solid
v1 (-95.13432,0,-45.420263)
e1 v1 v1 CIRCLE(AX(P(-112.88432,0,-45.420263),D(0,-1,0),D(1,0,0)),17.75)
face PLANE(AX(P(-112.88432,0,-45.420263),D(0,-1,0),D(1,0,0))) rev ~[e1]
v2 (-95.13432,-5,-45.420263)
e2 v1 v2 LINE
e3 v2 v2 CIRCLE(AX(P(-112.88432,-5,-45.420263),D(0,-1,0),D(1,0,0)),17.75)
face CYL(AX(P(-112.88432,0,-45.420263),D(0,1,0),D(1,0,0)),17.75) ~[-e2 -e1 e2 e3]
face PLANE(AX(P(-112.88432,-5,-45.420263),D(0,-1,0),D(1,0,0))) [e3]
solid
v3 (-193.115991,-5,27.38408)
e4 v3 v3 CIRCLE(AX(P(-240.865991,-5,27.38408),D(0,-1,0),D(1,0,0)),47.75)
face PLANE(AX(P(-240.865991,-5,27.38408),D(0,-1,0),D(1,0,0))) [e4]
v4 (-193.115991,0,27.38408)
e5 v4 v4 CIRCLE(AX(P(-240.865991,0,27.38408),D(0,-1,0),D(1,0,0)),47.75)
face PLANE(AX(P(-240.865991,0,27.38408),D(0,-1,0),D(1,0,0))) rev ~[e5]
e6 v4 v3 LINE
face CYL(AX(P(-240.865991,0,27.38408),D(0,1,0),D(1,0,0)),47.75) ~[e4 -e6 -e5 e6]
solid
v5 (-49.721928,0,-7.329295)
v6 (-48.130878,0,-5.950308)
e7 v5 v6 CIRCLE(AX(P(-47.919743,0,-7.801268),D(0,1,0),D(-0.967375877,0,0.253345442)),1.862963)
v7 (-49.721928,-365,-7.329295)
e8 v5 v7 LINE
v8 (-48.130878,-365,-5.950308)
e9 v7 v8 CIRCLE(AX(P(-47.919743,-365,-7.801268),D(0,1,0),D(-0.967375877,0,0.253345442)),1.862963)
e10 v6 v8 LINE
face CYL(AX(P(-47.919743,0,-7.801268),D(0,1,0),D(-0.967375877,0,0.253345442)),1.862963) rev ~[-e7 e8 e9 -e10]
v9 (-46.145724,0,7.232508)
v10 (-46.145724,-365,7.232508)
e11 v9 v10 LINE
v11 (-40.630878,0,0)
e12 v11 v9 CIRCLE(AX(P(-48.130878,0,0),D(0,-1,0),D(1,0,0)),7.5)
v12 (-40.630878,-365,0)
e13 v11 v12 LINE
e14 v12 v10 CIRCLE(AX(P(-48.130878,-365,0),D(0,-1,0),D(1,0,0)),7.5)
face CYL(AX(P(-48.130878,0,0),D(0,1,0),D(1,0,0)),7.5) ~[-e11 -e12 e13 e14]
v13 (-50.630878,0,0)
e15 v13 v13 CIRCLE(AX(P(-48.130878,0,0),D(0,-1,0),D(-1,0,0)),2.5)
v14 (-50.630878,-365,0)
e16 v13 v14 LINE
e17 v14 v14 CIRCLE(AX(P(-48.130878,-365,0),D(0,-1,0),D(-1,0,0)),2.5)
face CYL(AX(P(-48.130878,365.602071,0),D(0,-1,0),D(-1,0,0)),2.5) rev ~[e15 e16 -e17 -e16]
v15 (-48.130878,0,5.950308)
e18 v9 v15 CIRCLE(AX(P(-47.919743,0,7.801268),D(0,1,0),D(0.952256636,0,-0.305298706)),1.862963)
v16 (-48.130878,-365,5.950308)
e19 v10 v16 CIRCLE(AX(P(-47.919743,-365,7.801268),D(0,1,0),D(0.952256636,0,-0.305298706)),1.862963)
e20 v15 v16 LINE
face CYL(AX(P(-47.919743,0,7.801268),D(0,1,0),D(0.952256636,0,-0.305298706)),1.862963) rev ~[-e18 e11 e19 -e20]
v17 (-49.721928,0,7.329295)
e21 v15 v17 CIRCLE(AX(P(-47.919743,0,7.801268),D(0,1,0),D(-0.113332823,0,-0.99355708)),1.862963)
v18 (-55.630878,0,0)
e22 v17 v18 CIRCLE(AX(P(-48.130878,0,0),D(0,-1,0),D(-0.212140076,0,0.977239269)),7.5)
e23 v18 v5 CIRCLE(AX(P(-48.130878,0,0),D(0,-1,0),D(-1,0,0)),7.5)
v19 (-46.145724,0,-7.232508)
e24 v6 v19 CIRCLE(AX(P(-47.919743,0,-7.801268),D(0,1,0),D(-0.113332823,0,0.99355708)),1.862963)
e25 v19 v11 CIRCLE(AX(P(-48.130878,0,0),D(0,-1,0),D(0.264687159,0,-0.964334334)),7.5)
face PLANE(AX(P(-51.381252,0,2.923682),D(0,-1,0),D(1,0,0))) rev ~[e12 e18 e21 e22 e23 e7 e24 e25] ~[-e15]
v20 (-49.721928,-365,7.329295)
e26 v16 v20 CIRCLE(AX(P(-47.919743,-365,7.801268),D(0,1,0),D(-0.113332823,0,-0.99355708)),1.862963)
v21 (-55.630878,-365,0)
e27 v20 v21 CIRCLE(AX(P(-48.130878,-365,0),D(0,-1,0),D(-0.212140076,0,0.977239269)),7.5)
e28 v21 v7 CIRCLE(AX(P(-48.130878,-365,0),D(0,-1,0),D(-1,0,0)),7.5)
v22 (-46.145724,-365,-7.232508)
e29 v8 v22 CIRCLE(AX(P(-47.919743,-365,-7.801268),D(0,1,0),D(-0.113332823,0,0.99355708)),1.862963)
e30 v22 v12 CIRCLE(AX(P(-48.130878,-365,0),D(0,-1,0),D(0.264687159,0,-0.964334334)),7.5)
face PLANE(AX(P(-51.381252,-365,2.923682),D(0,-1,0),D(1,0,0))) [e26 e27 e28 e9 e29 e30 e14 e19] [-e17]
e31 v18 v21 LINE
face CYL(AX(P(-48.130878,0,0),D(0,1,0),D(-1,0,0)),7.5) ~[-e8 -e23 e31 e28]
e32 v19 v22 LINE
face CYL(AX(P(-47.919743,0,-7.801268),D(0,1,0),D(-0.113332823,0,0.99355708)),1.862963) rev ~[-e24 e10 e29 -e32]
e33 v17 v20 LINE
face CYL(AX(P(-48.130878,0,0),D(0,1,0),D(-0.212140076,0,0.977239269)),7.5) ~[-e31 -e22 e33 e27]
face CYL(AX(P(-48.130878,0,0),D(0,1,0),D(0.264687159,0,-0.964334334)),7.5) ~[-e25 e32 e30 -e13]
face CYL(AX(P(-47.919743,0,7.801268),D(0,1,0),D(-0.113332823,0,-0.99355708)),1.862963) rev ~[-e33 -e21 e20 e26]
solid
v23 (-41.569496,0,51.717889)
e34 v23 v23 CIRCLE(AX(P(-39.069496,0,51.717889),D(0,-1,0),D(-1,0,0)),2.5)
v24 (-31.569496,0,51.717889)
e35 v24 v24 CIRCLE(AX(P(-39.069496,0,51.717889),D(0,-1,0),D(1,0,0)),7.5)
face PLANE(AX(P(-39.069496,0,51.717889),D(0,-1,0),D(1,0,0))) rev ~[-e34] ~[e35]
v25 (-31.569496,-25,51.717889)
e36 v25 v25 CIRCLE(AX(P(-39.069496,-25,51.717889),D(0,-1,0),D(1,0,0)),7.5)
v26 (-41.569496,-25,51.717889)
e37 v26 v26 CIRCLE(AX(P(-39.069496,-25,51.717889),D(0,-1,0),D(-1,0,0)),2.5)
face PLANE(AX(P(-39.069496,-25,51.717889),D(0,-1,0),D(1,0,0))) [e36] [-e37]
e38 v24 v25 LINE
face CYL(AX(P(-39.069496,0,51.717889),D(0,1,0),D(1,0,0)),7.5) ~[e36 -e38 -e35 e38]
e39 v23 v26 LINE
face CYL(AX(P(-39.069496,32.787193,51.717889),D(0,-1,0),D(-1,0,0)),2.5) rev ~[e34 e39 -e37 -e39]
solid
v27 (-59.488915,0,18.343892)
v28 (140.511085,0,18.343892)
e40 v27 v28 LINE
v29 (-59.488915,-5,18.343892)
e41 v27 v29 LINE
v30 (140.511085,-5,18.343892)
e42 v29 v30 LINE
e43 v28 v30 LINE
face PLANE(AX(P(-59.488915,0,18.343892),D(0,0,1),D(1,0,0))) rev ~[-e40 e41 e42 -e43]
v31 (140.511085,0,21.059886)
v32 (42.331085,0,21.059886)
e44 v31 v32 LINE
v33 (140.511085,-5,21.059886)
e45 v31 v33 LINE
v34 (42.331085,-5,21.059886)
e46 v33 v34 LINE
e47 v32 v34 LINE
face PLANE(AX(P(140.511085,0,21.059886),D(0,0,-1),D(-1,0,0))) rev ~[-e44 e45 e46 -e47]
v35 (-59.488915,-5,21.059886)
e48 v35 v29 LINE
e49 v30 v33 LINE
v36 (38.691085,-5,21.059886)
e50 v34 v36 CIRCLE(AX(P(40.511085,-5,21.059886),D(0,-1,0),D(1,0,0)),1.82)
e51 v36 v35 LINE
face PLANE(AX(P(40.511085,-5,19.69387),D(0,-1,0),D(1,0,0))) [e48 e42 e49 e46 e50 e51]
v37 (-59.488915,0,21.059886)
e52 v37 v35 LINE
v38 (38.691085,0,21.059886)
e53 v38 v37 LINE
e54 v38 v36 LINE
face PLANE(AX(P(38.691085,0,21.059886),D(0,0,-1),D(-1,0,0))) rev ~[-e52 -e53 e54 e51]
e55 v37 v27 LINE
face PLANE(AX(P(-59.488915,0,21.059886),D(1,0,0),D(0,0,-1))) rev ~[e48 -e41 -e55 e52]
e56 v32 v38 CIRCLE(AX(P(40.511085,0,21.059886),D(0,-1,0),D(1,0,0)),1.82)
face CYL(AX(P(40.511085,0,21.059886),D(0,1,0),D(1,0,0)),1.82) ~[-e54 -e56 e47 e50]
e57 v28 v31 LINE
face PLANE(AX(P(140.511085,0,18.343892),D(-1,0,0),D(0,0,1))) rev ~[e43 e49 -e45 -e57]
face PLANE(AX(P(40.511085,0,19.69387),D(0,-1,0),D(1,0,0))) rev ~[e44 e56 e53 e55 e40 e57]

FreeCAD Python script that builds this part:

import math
import FreeCAD as App
import Part
import Sketcher

V = App.Vector

doc = App.newDocument("Part")
body = doc.addObject("PartDesign::Body", "Body")

sketch1 = body.newObject("Sketcher::SketchObject", "Sketch")
sketch1.AttachmentSupport = (doc.getObject("XZ_Plane"), [""])
sketch1.MapMode = "FlatFace"
sketch1.addGeometry(Part.ArcOfCircle(Part.Circle(V(-48.130878, 0, 0), V(0, 0, 1), 7.5), math.radians(102.247796), math.radians(180)), False)
sketch1.addGeometry(Part.ArcOfCircle(Part.Circle(V(-48.130878, 0, 0), V(0, 0, 1), 7.5), math.radians(180), math.radians(257.752204)), False)
sketch1.addGeometry(Part.ArcOfCircle(Part.Circle(V(-47.919743, -7.801268, 0), V(0, 0, 1), 1.862963), math.radians(96.507474), math.radians(165.324433)), False)
sketch1.addGeometry(Part.ArcOfCircle(Part.Circle(V(-47.919743, -7.801268, 0), V(0, 0, 1), 1.862963), math.radians(17.776136), math.radians(96.507474)), False)
sketch1.addGeometry(Part.ArcOfCircle(Part.Circle(V(-48.130878, 0, 0), V(0, 0, 1), 7.5), math.radians(-74.651635), math.radians(0)), False)
sketch1.addGeometry(Part.ArcOfCircle(Part.Circle(V(-48.130878, 0, 0), V(0, 0, 1), 7.5), math.radians(0), math.radians(74.651635)), False)
sketch1.addGeometry(Part.ArcOfCircle(Part.Circle(V(-47.919743, 7.801268, 0), V(0, 0, 1), 1.862963), math.radians(-96.507474), math.radians(-17.776136)), False)
sketch1.addGeometry(Part.ArcOfCircle(Part.Circle(V(-47.919743, 7.801268, 0), V(0, 0, 1), 1.862963), math.radians(-165.324433), math.radians(-96.507474)), False)
sketch1.addConstraint(Sketcher.Constraint("Tangent", 0, 2, 1, 1))
sketch1.addConstraint(Sketcher.Constraint("Coincident", 1, 2, 2, 2))
sketch1.addConstraint(Sketcher.Constraint("Tangent", 2, 1, 3, 2))
sketch1.addConstraint(Sketcher.Constraint("Coincident", 3, 1, 4, 1))
sketch1.addConstraint(Sketcher.Constraint("Tangent", 4, 2, 5, 1))
sketch1.addConstraint(Sketcher.Constraint("Coincident", 5, 2, 6, 2))
sketch1.addConstraint(Sketcher.Constraint("Tangent", 6, 1, 7, 2))
sketch1.addConstraint(Sketcher.Constraint("Coincident", 7, 1, 0, 1))
sketch1.addConstraint(Sketcher.Constraint("Coincident", 4, 3, 0, 3))
sketch1.addConstraint(Sketcher.Constraint("Equal", 0, 1))
sketch1.addConstraint(Sketcher.Constraint("Equal", 2, 3))
sketch1.addConstraint(Sketcher.Constraint("Equal", 1, 4))
sketch1.addConstraint(Sketcher.Constraint("Equal", 4, 5))
sketch1.addConstraint(Sketcher.Constraint("Equal", 3, 6))
sketch1.addConstraint(Sketcher.Constraint("Equal", 6, 7))
sketch1.addConstraint(Sketcher.Constraint("Symmetric", 2, 3, 6, 3, -1))
sketch1.addConstraint(Sketcher.Constraint("PointOnObject", 0, 3, -1))
sketch1.addConstraint(Sketcher.Constraint("PointOnObject", 0, 2, -1))
sketch1.addConstraint(Sketcher.Constraint("PointOnObject", 4, 2, -1))
sketch1.addConstraint(Sketcher.Constraint("Vertical", 5, 3, 2, 1))
sketch1.addConstraint(Sketcher.Constraint("Vertical", 2, 1, 6, 1))
sketch1.addConstraint(Sketcher.Constraint("Radius", 0, 7.5))
sketch1.addConstraint(Sketcher.Constraint("Radius", 2, 1.862963))
sketch1.addConstraint(Sketcher.Constraint("DistanceY", 3, 1, 2, 1, 1.2822))
sketch1.addConstraint(Sketcher.Constraint("DistanceX", 1, 2, -1, 1, 49.721928))
sketch1.addConstraint(Sketcher.Constraint("DistanceX", 1, 2, 0, 3, 1.591051))
pad1 = body.newObject("PartDesign::Pad", "Pad")
pad1.Profile = sketch1
pad1.Length = 365

sketch2 = body.newObject("Sketcher::SketchObject", "Sketch001")
sketch2.AttachmentSupport = (doc.getObject("XZ_Plane"), [""])
sketch2.MapMode = "FlatFace"
sketch2.addGeometry(Part.Circle(V(-48.130878, 0, 0), V(0, 0, 1), 2.5), False)
sketch2.addConstraint(Sketcher.Constraint("PointOnObject", 0, 3, -1))
sketch2.addConstraint(Sketcher.Constraint("Diameter", 0, 5.0))
sketch2.addConstraint(Sketcher.Constraint("DistanceX", 0, 3, -1, 1, 48.130878))
doc.recompute()
hole = body.newObject("PartDesign::Hole", "Hole")
hole.Profile = sketch2
hole.ThreadType = "None"
hole.Diameter = 5
hole.DepthType = "ThroughAll"
hole.Reversed = True
body2 = doc.addObject("PartDesign::Body", "Body001")

sketch3 = body2.newObject("Sketcher::SketchObject", "Sketch002")
sketch3.AttachmentSupport = (doc.getObject("XZ_Plane001"), [""])
sketch3.MapMode = "FlatFace"
sketch3.addGeometry(Part.Circle(V(-39.069496, 51.717889, 0), V(0, 0, 1), 7.5), False)
sketch3.addConstraint(Sketcher.Constraint("Diameter", 0, 15.0))
sketch3.addConstraint(Sketcher.Constraint("DistanceY", -1, 1, 0, 3, 51.717889))
sketch3.addConstraint(Sketcher.Constraint("DistanceX", 0, 3, -1, 1, 39.069496))
pad2 = body2.newObject("PartDesign::Pad", "Pad001")
pad2.Profile = sketch3
pad2.Length = 25

sketch4 = body2.newObject("Sketcher::SketchObject", "Sketch003")
sketch4.AttachmentSupport = (doc.getObject("XZ_Plane001"), [""])
sketch4.MapMode = "FlatFace"
sketch4.addGeometry(Part.Circle(V(-39.069496, 51.717889, 0), V(0, 0, 1), 2.5), False)
sketch4.addConstraint(Sketcher.Constraint("Diameter", 0, 5.0))
sketch4.addConstraint(Sketcher.Constraint("DistanceY", -1, 1, 0, 3, 51.717889))
sketch4.addConstraint(Sketcher.Constraint("DistanceX", 0, 3, -1, 1, 39.069496))
doc.recompute()
hole2 = body2.newObject("PartDesign::Hole", "Hole001")
hole2.Profile = sketch4
hole2.ThreadType = "None"
hole2.Diameter = 5
hole2.DepthType = "ThroughAll"
hole2.Reversed = True
body3 = doc.addObject("PartDesign::Body", "Body002")

sketch5 = body3.newObject("Sketcher::SketchObject", "Sketch004")
sketch5.AttachmentSupport = (doc.getObject("XZ_Plane002"), [""])
sketch5.MapMode = "FlatFace"
sketch5.addGeometry(Part.LineSegment(V(140.511085, 21.059886, 0), V(42.331085, 21.059886, 0)), False)
sketch5.addGeometry(Part.ArcOfCircle(Part.Circle(V(40.511085, 21.059886, 0), V(0, 0, 1), 1.82), math.radians(0), math.radians(180)), False)
sketch5.addGeometry(Part.LineSegment(V(38.691085, 21.059886, 0), V(-59.488915, 21.059886, 0)), False)
sketch5.addGeometry(Part.LineSegment(V(-59.488915, 21.059886, 0), V(-59.488915, 18.343892, 0)), False)
sketch5.addGeometry(Part.LineSegment(V(-59.488915, 18.343892, 0), V(140.511085, 18.343892, 0)), False)
sketch5.addGeometry(Part.LineSegment(V(140.511085, 18.343892, 0), V(140.511085, 21.059886, 0)), False)
sketch5.addConstraint(Sketcher.Constraint("Coincident", 0, 2, 1, 1))
sketch5.addConstraint(Sketcher.Constraint("Coincident", 1, 2, 2, 1))
sketch5.addConstraint(Sketcher.Constraint("Coincident", 2, 2, 3, 1))
sketch5.addConstraint(Sketcher.Constraint("Coincident", 3, 2, 4, 1))
sketch5.addConstraint(Sketcher.Constraint("Coincident", 4, 2, 5, 1))
sketch5.addConstraint(Sketcher.Constraint("Coincident", 5, 2, 0, 1))
sketch5.addConstraint(Sketcher.Constraint("Horizontal", 0))
sketch5.addConstraint(Sketcher.Constraint("Horizontal", 2))
sketch5.addConstraint(Sketcher.Constraint("Vertical", 3))
sketch5.addConstraint(Sketcher.Constraint("Horizontal", 4))
sketch5.addConstraint(Sketcher.Constraint("Vertical", 5))
sketch5.addConstraint(Sketcher.Constraint("Horizontal", 1, 3, 0, 2))
sketch5.addConstraint(Sketcher.Constraint("Horizontal", 0, 2, 1, 2))
sketch5.addConstraint(Sketcher.Constraint("Equal", 0, 2))
sketch5.addConstraint(Sketcher.Constraint("DistanceX", 4, 1, 4, 2, 200.0))
sketch5.addConstraint(Sketcher.Constraint("Radius", 1, 1.82))
sketch5.addConstraint(Sketcher.Constraint("DistanceY", 3, 2, 3, 1, 2.715994))
sketch5.addConstraint(Sketcher.Constraint("DistanceY", -1, 1, 3, 2, 18.343892))
sketch5.addConstraint(Sketcher.Constraint("DistanceX", -1, 1, 1, 3, 40.511085))
pad3 = body3.newObject("PartDesign::Pad", "Pad002")
pad3.Profile = sketch5
pad3.Length = 5
body4 = doc.addObject("PartDesign::Body", "Body003")

sketch6 = body4.newObject("Sketcher::SketchObject", "Sketch005")
sketch6.AttachmentSupport = (doc.getObject("XZ_Plane003"), [""])
sketch6.MapMode = "FlatFace"
sketch6.addGeometry(Part.Circle(V(-112.88432, -45.420263, 0), V(0, 0, 1), 17.75), False)
sketch6.addConstraint(Sketcher.Constraint("Diameter", 0, 35.5))
sketch6.addConstraint(Sketcher.Constraint("DistanceX", 0, 3, -1, 1, 112.88432))
sketch6.addConstraint(Sketcher.Constraint("DistanceY", 0, 3, -1, 1, 45.420263))
pad4 = body4.newObject("PartDesign::Pad", "Pad003")
pad4.Profile = sketch6
pad4.Length = 5
body5 = doc.addObject("PartDesign::Body", "Body004")

sketch7 = body5.newObject("Sketcher::SketchObject", "Sketch006")
sketch7.AttachmentSupport = (doc.getObject("XZ_Plane004"), [""])
sketch7.MapMode = "FlatFace"
sketch7.addGeometry(Part.Circle(V(-240.865991, 27.38408, 0), V(0, 0, 1), 47.75), False)
sketch7.addConstraint(Sketcher.Constraint("Diameter", 0, 95.5))
sketch7.addConstraint(Sketcher.Constraint("DistanceX", 0, 3, -1, 1, 240.865991))
sketch7.addConstraint(Sketcher.Constraint("DistanceY", -1, 1, 0, 3, 27.38408))
pad5 = body5.newObject("PartDesign::Pad", "Pad004")
pad5.Profile = sketch7
pad5.Length = 5

doc.recompute()
